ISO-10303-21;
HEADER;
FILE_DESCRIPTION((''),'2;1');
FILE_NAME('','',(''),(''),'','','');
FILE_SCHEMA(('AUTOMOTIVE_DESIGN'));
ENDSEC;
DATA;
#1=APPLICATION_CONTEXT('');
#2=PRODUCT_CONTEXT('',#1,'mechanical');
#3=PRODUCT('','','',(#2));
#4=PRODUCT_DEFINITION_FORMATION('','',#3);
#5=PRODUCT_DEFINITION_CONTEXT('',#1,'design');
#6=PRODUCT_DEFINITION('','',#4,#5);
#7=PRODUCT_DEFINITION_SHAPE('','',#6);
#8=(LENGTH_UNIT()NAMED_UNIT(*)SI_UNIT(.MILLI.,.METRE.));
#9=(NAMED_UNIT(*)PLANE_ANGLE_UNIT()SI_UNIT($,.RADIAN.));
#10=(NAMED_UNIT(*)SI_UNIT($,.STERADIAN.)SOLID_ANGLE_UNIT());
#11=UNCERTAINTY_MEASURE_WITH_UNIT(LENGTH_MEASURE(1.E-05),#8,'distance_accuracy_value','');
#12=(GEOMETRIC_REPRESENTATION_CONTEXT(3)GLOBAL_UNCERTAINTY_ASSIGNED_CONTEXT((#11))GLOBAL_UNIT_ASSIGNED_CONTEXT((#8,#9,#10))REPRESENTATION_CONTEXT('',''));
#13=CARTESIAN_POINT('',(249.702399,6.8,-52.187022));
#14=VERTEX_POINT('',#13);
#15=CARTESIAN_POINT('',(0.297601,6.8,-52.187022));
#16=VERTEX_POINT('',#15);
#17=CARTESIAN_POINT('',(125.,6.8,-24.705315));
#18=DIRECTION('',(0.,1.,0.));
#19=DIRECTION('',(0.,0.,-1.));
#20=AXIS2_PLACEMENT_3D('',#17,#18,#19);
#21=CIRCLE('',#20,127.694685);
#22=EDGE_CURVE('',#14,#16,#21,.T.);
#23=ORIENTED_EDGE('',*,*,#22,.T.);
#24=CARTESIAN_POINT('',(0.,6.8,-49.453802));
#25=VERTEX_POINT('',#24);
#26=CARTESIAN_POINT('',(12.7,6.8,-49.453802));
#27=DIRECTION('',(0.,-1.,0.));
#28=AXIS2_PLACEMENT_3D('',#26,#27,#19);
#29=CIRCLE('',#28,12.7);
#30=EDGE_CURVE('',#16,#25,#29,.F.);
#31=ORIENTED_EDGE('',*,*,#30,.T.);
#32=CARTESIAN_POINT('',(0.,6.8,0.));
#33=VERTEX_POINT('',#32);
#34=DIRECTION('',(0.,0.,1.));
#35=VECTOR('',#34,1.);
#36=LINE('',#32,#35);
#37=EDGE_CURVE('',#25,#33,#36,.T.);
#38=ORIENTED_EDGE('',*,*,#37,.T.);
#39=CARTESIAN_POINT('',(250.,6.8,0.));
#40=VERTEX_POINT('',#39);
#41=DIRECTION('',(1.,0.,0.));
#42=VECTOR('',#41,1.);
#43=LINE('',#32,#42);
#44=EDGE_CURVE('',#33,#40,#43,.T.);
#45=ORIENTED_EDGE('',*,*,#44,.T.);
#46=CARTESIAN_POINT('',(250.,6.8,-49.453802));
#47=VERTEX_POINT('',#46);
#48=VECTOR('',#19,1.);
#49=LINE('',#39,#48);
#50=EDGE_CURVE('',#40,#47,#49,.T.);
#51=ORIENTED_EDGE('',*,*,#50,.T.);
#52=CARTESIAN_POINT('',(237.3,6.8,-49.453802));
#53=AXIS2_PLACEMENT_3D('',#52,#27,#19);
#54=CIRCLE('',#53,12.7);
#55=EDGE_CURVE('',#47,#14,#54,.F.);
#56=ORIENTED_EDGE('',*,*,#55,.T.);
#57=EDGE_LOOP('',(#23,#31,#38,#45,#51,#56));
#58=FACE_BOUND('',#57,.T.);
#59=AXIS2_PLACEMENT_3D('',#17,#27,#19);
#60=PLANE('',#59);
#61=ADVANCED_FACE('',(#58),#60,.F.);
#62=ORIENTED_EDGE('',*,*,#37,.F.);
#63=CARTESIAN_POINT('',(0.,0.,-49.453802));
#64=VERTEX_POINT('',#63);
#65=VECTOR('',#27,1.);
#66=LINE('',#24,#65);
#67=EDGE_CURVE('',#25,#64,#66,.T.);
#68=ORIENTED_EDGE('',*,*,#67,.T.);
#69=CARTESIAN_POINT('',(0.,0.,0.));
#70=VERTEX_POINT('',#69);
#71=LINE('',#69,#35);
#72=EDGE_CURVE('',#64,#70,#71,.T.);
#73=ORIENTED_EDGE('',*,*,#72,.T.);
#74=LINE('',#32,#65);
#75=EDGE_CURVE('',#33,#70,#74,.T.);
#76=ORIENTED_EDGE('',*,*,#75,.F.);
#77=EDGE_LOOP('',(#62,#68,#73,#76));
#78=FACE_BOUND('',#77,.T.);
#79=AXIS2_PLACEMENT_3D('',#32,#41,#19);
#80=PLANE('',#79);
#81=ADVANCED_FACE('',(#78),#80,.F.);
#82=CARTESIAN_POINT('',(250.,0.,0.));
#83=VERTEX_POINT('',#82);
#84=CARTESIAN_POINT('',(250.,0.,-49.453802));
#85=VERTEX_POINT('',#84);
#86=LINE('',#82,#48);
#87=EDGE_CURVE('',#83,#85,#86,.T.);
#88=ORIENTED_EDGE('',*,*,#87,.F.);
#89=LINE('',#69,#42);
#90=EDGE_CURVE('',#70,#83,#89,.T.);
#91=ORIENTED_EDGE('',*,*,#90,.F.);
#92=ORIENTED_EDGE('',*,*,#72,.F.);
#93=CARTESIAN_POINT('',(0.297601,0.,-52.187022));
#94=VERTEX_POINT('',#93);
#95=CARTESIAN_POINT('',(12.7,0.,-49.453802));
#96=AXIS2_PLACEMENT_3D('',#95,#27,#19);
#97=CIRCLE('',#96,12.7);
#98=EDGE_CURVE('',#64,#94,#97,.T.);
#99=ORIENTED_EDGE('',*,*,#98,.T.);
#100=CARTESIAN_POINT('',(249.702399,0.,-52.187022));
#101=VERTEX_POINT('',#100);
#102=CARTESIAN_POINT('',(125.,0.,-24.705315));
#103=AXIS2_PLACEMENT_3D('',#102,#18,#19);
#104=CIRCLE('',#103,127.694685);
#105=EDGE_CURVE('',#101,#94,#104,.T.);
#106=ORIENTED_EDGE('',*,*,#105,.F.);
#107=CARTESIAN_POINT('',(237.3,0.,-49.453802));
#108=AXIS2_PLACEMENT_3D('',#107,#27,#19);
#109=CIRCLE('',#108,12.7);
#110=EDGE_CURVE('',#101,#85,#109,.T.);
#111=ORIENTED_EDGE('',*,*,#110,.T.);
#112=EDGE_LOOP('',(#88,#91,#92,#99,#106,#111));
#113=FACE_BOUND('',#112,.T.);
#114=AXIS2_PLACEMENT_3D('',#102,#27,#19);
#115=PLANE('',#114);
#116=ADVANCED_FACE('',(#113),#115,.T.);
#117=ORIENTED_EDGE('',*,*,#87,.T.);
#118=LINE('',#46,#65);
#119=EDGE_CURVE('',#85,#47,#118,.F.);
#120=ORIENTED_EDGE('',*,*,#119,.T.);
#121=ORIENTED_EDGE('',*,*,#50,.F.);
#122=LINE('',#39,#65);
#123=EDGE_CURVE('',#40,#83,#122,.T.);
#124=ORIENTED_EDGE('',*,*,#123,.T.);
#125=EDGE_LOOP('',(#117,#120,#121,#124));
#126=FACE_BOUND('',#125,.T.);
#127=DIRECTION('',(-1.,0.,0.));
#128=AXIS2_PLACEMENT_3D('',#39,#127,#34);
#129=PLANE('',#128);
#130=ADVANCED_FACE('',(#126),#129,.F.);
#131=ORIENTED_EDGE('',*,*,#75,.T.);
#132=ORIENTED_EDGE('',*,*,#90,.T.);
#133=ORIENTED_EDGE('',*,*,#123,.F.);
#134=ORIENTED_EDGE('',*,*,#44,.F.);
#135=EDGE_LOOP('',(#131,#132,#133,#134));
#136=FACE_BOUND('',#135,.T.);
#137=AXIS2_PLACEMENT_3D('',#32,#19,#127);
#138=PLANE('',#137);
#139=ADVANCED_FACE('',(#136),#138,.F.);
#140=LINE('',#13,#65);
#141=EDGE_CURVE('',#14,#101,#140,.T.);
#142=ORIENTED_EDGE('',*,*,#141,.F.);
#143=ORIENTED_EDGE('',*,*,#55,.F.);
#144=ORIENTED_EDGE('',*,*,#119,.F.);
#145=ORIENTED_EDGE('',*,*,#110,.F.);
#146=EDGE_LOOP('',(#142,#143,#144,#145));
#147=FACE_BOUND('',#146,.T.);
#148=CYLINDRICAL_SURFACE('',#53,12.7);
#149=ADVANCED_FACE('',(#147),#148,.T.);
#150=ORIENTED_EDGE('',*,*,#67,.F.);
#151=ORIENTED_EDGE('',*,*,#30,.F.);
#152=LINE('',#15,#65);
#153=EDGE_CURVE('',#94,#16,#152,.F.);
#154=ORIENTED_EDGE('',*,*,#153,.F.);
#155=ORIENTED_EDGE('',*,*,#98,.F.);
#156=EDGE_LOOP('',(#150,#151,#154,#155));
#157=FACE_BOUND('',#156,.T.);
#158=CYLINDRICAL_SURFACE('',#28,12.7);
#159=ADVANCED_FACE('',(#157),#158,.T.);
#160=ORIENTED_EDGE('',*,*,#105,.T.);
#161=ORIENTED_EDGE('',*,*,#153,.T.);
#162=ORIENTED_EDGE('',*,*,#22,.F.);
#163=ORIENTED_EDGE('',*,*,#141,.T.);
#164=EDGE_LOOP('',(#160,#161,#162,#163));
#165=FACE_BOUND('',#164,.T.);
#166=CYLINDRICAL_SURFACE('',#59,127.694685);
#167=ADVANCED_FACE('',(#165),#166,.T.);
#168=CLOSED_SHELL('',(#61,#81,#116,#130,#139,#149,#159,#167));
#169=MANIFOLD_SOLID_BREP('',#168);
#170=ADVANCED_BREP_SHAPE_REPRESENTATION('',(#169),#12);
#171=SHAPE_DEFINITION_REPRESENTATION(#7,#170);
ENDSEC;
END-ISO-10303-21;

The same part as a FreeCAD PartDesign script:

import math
import FreeCAD as App
import Part
import Sketcher

V = App.Vector


def edges_at(feature, points):
    """Names of the edges that pass closest to the given points."""
    edges = feature.Shape.Edges
    near = lambda p: min(range(len(edges)), key=lambda i: edges[i].distToShape(Part.Vertex(*p))[0])
    return sorted({f"Edge{near(p) + 1}" for p in points})

doc = App.newDocument("Part")
body = doc.addObject("PartDesign::Body", "Body")

# Sketch on XZ plane
sketch1 = body.newObject("Sketcher::SketchObject", "Sketch")
sketch1.AttachmentSupport = (doc.getObject("XZ_Plane"), [""])
sketch1.MapMode = "FlatFace"
sketch1.addGeometry(Part.LineSegment(V(0, 0, 0), V(250, 0, 0)), False)
sketch1.addGeometry(Part.LineSegment(V(250, 0, 0), V(250, -51, 0)), False)
sketch1.addGeometry(Part.ArcOfCircle(Part.Circle(V(125, -25, 0), V(0, 0, 1), 128), math.radians(-168), math.radians(-12)), False)
sketch1.addGeometry(Part.LineSegment(V(0, -51, 0), V(0, 0, 0)), False)
sketch1.addConstraint(Sketcher.Constraint("Coincident", 0, 2, 1, 1))
sketch1.addConstraint(Sketcher.Constraint("Coincident", 1, 2, 2, 2))
sketch1.addConstraint(Sketcher.Constraint("Coincident", 2, 1, 3, 1))
sketch1.addConstraint(Sketcher.Constraint("Coincident", 3, 2, 0, 1))
sketch1.addConstraint(Sketcher.Constraint("Horizontal", 0))
sketch1.addConstraint(Sketcher.Constraint("Vertical", 1))
sketch1.addConstraint(Sketcher.Constraint("Vertical", 3))
sketch1.addConstraint(Sketcher.Constraint("Coincident", 3, 2, -1, 1))
sketch1.addConstraint(Sketcher.Constraint("Horizontal", 1, 2, 2, 1))
sketch1.addConstraint(Sketcher.Constraint("DistanceX", 0, 1, 0, 2, 250.0))
sketch1.addConstraint(Sketcher.Constraint("DistanceY", 1, 2, 1, 1, 50.8))
sketch1.addConstraint(Sketcher.Constraint("Radius", 2, 127.694685))
pad1 = body.newObject("PartDesign::Pad", "Pad")
pad1.Profile = sketch1
pad1.Length = 6.8
pad1.Reversed = True
doc.recompute()

fillet = body.newObject("PartDesign::Fillet", "Fillet")
fillet.Base = (pad1, edges_at(pad1, [(0, 3.4, -50.8), (250, 3.4, -50.8)]))
fillet.Radius = 12.7

doc.recompute()
